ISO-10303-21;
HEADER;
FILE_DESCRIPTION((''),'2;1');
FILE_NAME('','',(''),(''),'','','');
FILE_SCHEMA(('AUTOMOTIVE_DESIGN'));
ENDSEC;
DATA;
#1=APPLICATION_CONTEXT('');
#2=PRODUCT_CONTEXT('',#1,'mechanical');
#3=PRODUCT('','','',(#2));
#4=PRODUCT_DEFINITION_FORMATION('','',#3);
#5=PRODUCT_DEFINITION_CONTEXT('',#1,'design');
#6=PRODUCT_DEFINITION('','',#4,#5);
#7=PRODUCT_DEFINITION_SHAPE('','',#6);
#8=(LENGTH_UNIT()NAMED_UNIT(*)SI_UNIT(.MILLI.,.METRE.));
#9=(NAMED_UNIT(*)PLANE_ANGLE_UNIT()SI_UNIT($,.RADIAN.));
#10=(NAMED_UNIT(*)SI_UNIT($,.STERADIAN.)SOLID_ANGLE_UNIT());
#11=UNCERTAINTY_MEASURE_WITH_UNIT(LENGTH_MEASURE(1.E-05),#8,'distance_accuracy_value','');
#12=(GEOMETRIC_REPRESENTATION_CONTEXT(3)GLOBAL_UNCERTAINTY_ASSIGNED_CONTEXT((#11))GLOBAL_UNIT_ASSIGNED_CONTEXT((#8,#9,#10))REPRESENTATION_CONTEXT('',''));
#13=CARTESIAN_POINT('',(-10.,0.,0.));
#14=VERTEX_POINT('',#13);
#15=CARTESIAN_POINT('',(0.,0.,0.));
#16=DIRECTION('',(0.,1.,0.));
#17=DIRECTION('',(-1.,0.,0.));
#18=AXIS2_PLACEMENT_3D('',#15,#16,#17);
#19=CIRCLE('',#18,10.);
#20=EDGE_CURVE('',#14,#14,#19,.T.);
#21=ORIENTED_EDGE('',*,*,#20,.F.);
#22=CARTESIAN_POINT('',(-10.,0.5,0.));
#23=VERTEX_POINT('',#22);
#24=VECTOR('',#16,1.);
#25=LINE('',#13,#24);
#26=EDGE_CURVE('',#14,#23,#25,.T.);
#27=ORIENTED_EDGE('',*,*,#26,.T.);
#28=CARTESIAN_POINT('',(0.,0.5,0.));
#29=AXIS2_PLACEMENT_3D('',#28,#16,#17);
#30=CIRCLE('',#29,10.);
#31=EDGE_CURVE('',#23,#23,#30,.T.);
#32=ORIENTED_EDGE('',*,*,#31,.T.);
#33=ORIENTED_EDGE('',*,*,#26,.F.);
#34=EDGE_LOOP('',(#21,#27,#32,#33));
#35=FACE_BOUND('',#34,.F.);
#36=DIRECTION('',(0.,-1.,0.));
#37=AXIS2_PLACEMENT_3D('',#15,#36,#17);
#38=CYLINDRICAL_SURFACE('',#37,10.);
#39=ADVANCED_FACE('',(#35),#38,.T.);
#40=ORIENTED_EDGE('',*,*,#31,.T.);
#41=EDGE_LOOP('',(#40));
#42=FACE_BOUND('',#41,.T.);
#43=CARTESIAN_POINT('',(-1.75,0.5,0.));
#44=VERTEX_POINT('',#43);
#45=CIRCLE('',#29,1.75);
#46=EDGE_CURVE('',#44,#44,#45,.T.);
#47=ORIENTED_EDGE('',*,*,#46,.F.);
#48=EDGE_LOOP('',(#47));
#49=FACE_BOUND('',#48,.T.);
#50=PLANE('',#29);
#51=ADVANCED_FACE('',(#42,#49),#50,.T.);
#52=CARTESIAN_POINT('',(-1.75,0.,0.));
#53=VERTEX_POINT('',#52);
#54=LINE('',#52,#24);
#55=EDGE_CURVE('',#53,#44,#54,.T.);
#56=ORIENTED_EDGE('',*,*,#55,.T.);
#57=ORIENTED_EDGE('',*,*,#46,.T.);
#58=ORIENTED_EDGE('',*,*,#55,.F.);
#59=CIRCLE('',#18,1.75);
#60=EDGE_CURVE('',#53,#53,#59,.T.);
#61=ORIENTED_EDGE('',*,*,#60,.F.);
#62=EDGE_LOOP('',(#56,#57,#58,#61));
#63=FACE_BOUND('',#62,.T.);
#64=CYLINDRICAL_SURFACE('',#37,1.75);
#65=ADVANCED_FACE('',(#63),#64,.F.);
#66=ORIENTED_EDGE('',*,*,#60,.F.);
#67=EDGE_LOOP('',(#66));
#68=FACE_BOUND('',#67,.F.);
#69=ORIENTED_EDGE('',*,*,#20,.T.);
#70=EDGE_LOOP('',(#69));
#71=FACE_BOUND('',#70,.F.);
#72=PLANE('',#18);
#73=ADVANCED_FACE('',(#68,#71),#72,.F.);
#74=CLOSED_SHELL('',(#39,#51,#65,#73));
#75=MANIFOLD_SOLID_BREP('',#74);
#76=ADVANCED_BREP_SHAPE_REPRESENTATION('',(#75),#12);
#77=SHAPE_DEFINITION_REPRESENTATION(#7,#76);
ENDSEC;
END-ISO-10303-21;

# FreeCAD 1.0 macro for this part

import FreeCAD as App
import Part
import Sketcher
from FreeCAD import Vector

doc = App.newDocument("Part")
params = doc.addObject("Spreadsheet::Sheet", "Params")
for row, (alias, value) in enumerate([
    ("sketch1_diameter", "20 mm"),
    ("sketch1_diameter2", "3.5 mm"),
    ("pad1_length", "0.5 mm"),
], start=1):
    params.set(f"A{row}", alias)
    params.set(f"B{row}", "=" + value)
    params.setAlias(f"B{row}", alias)

body = doc.addObject("PartDesign::Body", "Body")

sketch1 = doc.addObject("Sketcher::SketchObject", "Sketch")
body.addObject(sketch1)
sketch1.AttachmentSupport = (doc.XZ_Plane, [""])
sketch1.MapMode = "FlatFace"
sketch1.addGeometry([
    Part.Circle(Vector(0, 0, 0), Vector(0, 0, 1), 10),
    Part.Circle(Vector(0, 0, 0), Vector(0, 0, 1), 1.8),
], False)
sketch1.addConstraint([
    Sketcher.Constraint("Coincident", 0, 3, -1, 1),
    Sketcher.Constraint("Coincident", 1, 3, -1, 1),
    Sketcher.Constraint("Diameter", 0, 20.0),
    Sketcher.Constraint("Diameter", 1, 3.5),
])
sketch1.setExpression("Constraints[2]", "Params.sketch1_diameter")
sketch1.setExpression("Constraints[3]", "Params.sketch1_diameter2")
pad1 = doc.addObject("PartDesign::Pad", "Pad")
body.addObject(pad1)
pad1.Profile = sketch1
pad1.setExpression("Length", "Params.pad1_length")
pad1.Reversed = True

doc.recompute()
